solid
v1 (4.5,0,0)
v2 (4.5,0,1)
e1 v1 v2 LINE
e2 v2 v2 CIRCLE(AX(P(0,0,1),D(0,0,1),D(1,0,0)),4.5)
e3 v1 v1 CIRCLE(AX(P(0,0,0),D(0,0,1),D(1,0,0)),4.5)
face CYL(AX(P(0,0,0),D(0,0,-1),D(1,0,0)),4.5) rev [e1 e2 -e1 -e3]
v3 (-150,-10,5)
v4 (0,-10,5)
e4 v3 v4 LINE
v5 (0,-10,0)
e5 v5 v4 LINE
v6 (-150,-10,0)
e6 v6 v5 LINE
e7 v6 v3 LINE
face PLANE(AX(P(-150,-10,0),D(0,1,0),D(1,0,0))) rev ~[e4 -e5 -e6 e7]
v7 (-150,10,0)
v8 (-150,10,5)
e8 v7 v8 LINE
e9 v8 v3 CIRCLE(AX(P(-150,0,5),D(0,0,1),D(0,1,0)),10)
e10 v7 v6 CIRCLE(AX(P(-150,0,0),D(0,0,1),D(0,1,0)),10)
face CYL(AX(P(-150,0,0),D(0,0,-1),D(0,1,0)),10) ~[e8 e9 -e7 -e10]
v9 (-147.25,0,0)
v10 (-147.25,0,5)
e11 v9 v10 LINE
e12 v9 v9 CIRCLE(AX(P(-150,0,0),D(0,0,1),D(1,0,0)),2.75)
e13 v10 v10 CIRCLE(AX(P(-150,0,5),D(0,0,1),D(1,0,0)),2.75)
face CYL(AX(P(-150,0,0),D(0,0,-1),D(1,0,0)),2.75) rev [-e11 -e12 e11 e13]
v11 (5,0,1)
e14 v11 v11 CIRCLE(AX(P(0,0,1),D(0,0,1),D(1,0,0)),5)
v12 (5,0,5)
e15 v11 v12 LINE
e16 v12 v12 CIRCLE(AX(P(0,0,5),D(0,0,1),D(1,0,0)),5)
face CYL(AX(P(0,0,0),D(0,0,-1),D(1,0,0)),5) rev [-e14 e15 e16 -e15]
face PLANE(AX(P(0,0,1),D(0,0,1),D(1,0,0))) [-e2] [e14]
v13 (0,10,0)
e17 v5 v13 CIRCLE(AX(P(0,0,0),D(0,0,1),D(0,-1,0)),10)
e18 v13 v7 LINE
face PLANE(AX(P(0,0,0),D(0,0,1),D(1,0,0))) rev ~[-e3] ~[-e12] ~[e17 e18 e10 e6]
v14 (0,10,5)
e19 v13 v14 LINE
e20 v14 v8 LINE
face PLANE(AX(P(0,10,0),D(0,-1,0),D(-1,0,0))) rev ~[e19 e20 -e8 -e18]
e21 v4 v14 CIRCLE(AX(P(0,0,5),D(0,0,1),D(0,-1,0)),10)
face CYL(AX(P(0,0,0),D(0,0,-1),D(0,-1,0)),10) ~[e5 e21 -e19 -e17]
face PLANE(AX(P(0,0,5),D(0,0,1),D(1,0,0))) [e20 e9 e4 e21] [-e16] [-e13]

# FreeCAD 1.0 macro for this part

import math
import FreeCAD as App
import Part
import Sketcher
from FreeCAD import Vector

doc = App.newDocument("Part")
body = doc.addObject("PartDesign::Body", "Body")

# Sketch on XY plane
sketch1 = body.newObject("Sketcher::SketchObject", "Sketch")
sketch1.AttachmentSupport = (doc.getObject("XY_Plane"), [""])
sketch1.MapMode = "FlatFace"
sketch1.addGeometry([
    Part.ArcOfCircle(Part.Circle(Vector(0, 0, 0), Vector(0, 0, 1), 10), math.radians(-90), math.radians(90)),  # 0
    Part.LineSegment(Vector(0, 10, 0), Vector(-150, 10, 0)),  # 1
    Part.ArcOfCircle(Part.Circle(Vector(-150, 0, 0), Vector(0, 0, 1), 10), math.radians(90), math.radians(270)),  # 2
    Part.LineSegment(Vector(-150, -10, 0), Vector(0, -10, 0)),  # 3
    Part.Circle(Vector(-150, 0, 0), Vector(0, 0, 1), 2.75),  # 4
    Part.Circle(Vector(0, 0, 0), Vector(0, 0, 1), 5),  # 5
], False)
sketch1.addConstraint([
    Sketcher.Constraint("Tangent", 0, 2, 1, 1),
    Sketcher.Constraint("Tangent", 1, 2, 2, 1),
    Sketcher.Constraint("Tangent", 2, 2, 3, 1),
    Sketcher.Constraint("Tangent", 3, 2, 0, 1),
    Sketcher.Constraint("Horizontal", 1),
    Sketcher.Constraint("Horizontal", 3),
    Sketcher.Constraint("Coincident", 0, 3, -1, 1),
    Sketcher.Constraint("Coincident", 5, 3, -1, 1),
    Sketcher.Constraint("Coincident", 4, 3, 2, 3),
    Sketcher.Constraint("Diameter", 5, 10.0),
    Sketcher.Constraint("Radius", 0, 10.0),
    Sketcher.Constraint("Diameter", 4, 5.5),
    Sketcher.Constraint("DistanceX", 1, 2, 1, 1, 150.0),
])
pad1 = body.newObject("PartDesign::Pad", "Pad")
pad1.Profile = sketch1
pad1.Length = 5

# Sketch on XY plane
sketch2 = body.newObject("Sketcher::SketchObject", "Sketch001")
sketch2.AttachmentSupport = (doc.getObject("XY_Plane"), [""])
sketch2.MapMode = "FlatFace"
sketch2.addGeometry([
    Part.Circle(Vector(0, 0, 0), Vector(0, 0, 1), 5),
    Part.Circle(Vector(0, 0, 0), Vector(0, 0, 1), 4.5),
], False)
sketch2.addConstraint([
    Sketcher.Constraint("Coincident", 0, 3, -1, 1),
    Sketcher.Constraint("Coincident", 1, 3, -1, 1),
    Sketcher.Constraint("Diameter", 0, 10.0),
    Sketcher.Constraint("Diameter", 1, 9.0),
])
pad2 = body.newObject("PartDesign::Pad", "Pad001")
pad2.Profile = sketch2
pad2.Length = 1

doc.recompute()
